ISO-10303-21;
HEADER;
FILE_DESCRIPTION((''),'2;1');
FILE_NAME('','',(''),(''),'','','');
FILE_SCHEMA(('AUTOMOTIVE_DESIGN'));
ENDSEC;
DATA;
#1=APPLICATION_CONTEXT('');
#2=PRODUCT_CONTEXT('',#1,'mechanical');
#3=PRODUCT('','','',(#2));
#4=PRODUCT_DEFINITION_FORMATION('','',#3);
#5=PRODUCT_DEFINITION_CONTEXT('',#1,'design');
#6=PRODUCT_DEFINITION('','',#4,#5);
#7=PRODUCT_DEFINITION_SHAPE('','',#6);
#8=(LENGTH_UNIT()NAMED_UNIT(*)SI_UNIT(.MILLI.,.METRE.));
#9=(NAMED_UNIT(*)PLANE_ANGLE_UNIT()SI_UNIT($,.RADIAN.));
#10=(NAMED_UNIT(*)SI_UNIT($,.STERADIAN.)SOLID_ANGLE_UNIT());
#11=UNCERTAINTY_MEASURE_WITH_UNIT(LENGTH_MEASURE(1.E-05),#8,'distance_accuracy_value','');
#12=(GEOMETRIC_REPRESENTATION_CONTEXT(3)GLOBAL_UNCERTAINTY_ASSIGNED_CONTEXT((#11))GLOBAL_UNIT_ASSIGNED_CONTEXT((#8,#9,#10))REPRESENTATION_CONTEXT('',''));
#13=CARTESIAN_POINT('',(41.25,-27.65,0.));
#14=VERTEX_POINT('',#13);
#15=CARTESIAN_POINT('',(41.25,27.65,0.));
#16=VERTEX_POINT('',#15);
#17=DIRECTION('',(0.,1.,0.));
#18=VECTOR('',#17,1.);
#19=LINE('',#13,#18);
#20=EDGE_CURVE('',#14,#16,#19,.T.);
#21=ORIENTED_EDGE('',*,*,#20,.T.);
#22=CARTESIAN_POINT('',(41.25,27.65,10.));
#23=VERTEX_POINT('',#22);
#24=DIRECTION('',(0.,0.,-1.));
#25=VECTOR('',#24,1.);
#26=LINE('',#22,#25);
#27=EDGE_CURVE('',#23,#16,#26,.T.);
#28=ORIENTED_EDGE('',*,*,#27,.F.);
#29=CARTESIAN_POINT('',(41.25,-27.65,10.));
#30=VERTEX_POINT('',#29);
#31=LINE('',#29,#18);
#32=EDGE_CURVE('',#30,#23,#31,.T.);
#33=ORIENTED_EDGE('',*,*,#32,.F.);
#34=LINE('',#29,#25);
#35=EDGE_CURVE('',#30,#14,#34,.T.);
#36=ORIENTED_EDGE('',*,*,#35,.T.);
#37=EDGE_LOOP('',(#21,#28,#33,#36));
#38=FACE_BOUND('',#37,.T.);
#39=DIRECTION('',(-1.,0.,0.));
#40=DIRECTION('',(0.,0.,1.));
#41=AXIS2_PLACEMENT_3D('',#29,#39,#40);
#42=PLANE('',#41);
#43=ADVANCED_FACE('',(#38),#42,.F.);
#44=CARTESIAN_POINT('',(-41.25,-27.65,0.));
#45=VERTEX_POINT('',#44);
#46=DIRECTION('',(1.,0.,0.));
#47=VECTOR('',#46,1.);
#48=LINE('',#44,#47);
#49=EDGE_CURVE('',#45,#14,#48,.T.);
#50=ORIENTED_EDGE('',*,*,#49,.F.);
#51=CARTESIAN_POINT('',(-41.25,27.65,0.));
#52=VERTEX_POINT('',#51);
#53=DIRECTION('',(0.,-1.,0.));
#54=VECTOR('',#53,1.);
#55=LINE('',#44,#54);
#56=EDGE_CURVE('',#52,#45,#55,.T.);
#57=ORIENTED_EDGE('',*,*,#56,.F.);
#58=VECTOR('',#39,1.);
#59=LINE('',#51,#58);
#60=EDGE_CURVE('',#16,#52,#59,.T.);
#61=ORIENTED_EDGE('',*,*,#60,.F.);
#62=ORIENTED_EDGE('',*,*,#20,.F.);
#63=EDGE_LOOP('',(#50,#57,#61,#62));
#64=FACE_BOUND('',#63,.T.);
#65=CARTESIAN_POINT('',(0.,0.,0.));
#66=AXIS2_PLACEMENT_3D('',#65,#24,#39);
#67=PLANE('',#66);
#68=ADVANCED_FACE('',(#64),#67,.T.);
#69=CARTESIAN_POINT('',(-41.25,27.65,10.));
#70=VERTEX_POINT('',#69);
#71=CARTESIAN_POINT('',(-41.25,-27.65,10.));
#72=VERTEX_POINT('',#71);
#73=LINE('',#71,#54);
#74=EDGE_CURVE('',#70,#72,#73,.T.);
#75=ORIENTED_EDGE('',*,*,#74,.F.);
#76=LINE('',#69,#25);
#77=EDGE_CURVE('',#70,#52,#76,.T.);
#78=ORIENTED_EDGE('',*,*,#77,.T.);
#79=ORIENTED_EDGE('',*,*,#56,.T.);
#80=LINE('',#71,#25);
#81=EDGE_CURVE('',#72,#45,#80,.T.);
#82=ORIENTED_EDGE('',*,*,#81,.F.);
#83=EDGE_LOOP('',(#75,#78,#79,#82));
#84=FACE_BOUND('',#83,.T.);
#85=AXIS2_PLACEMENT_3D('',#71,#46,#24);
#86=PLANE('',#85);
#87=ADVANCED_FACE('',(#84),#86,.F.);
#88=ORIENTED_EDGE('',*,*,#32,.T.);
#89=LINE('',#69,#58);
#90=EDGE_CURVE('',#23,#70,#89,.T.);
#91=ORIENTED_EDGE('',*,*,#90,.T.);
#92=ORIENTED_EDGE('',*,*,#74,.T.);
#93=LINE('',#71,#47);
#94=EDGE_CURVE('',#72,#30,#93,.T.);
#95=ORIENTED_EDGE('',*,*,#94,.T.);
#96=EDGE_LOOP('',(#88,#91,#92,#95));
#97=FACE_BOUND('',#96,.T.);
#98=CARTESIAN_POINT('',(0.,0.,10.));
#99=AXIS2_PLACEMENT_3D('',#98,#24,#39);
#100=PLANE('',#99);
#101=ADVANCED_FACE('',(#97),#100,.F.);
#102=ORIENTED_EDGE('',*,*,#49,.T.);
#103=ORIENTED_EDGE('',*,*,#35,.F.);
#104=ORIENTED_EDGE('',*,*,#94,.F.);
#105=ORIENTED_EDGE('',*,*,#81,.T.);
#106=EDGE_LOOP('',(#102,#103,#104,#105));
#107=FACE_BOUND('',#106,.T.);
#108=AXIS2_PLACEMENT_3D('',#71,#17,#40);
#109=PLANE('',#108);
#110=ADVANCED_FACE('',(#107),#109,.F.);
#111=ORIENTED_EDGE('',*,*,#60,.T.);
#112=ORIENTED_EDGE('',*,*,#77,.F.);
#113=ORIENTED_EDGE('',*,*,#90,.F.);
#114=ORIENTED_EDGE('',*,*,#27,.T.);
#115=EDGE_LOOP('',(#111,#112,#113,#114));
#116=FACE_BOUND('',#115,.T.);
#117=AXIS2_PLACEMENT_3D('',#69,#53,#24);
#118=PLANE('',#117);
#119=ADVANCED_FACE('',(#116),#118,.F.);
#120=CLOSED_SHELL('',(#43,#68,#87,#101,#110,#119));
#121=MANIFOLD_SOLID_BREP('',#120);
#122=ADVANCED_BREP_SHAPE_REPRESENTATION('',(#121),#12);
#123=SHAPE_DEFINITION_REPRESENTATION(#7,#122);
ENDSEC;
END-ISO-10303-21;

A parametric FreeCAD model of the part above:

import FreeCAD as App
import Part
import Sketcher
Q = App.Units.Quantity


def add_polygon(sketch, points):
    """Adds a closed chain of lines whose ends are joined by coincident constraints."""
    first, n = sketch.GeometryCount, len(points)
    for a, b in zip(points, points[1:] + points[:1]):
        sketch.addGeometry(Part.LineSegment(App.Vector(*a, 0), App.Vector(*b, 0)), False)
    for i in range(n):
        sketch.addConstraint(Sketcher.Constraint("Coincident", first + i, 2, first + (i + 1) % n, 1))

doc = App.newDocument("Part")
body = doc.addObject("PartDesign::Body", "Body")

# Sketch on XY plane
sketch1 = body.newObject("Sketcher::SketchObject", "Sketch")
sketch1.AttachmentSupport = (doc.getObject("XY_Plane"), [""])
sketch1.MapMode = "FlatFace"
add_polygon(sketch1, [(-41, 28), (-41, -28), (41, -28), (41, 28)])  # lines 0-3
sketch1.addConstraint(Sketcher.Constraint("Vertical", 0))
sketch1.addConstraint(Sketcher.Constraint("Horizontal", 1))
sketch1.addConstraint(Sketcher.Constraint("Vertical", 2))
sketch1.addConstraint(Sketcher.Constraint("Horizontal", 3))
sketch1.addConstraint(Sketcher.Constraint("Symmetric", 0, 2, 2, 2, -1, 1))
sketch1.addConstraint(Sketcher.Constraint("DistanceX", 1, 1, 1, 2, Q("82.5 mm")))
sketch1.addConstraint(Sketcher.Constraint("DistanceY", 0, 2, 0, 1, Q("55.3 mm")))
pad1 = body.newObject("PartDesign::Pad", "Pad")
pad1.Profile = sketch1
pad1.Length = 10

doc.recompute()
